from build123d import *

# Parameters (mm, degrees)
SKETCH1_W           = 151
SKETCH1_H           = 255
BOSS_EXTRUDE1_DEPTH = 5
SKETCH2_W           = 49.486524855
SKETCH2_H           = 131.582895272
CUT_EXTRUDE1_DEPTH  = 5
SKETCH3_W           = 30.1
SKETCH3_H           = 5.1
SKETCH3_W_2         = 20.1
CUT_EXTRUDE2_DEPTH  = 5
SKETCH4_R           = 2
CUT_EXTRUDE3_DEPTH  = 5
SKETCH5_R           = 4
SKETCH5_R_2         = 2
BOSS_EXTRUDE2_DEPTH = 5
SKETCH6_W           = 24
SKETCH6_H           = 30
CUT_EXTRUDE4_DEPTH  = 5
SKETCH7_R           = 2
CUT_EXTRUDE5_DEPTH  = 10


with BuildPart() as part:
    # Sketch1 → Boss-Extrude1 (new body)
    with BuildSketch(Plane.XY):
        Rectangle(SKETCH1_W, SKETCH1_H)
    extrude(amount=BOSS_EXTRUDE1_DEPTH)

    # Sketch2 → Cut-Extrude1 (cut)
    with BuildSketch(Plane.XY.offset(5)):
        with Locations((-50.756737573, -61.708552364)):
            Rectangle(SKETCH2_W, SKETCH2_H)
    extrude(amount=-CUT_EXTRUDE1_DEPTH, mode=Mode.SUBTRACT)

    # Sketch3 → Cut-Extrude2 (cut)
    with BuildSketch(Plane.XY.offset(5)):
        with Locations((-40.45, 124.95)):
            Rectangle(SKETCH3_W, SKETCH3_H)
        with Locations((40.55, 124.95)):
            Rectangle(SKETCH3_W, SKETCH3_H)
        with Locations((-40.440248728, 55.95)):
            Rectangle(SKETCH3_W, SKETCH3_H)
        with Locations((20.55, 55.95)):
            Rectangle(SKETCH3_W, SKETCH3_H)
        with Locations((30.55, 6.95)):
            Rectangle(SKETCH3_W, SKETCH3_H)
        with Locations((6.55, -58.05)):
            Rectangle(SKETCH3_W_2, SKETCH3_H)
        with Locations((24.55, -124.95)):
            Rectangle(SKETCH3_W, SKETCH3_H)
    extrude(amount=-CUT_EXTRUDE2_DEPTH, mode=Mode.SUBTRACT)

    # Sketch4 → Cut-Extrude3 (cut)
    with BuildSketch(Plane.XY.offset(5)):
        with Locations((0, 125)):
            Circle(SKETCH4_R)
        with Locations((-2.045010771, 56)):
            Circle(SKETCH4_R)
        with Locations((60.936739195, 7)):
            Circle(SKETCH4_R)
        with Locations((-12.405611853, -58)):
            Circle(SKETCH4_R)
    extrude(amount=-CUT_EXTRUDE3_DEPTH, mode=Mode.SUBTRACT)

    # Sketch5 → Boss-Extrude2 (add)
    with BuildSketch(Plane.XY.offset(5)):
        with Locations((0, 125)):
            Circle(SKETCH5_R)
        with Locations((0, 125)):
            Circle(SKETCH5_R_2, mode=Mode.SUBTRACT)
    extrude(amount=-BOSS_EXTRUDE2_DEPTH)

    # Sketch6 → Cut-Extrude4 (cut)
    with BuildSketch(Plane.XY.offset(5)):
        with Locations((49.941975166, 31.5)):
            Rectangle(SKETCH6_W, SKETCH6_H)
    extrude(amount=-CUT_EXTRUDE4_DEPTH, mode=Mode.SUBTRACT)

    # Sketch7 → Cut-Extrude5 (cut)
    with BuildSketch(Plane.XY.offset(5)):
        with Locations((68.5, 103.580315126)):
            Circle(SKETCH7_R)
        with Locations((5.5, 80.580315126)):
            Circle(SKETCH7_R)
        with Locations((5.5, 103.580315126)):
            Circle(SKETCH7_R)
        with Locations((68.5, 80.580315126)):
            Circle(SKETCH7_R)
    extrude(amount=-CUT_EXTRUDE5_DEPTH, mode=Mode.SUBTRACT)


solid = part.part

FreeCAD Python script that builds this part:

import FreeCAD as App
import Part
import Sketcher

V = App.Vector

doc = App.newDocument("Part")
params = doc.addObject("Spreadsheet::Sheet", "Params")
for row, (alias, value) in enumerate([
    ("sketch1_width", "151 mm"),
    ("sketch1_height", "255 mm"),
    ("pad1_length", "5 mm"),
    ("pocket1_length", "5 mm"),
    ("sketch3_width", "30.1 mm"),
    ("sketch3_width2", "20.1 mm"),
    ("sketch3_height", "5.1 mm"),
    ("pocket2_length", "5 mm"),
    ("sketch4_diameter", "4 mm"),
    ("pocket3_length", "5 mm"),
    ("sketch5_diameter", "8 mm"),
    ("sketch5_diameter2", "4 mm"),
    ("pad2_length", "5 mm"),
    ("sketch6_width", "24 mm"),
    ("sketch6_height", "30 mm"),
    ("pocket4_length", "5 mm"),
    ("sketch7_diameter", "4 mm"),
    ("pocket5_length", "10 mm"),
], start=1):
    params.set(f"A{row}", alias)
    params.set(f"B{row}", "=" + value)
    params.setAlias(f"B{row}", alias)

body = doc.addObject("PartDesign::Body", "Body")

# Sketch on XY plane
sketch1 = doc.addObject("Sketcher::SketchObject", "Sketch")
body.addObject(sketch1)
sketch1.AttachmentSupport = (doc.XY_Plane, [""])
sketch1.MapMode = "FlatFace"
sketch1.addGeometry(Part.LineSegment(V(-76, 128, 0), V(-76, -128, 0)), False)
sketch1.addGeometry(Part.LineSegment(V(-76, -128, 0), V(76, -128, 0)), False)
sketch1.addGeometry(Part.LineSegment(V(76, -128, 0), V(76, 128, 0)), False)
sketch1.addGeometry(Part.LineSegment(V(76, 128, 0), V(-76, 128, 0)), False)
sketch1.addConstraint(Sketcher.Constraint("Coincident", 0, 2, 1, 1))
sketch1.addConstraint(Sketcher.Constraint("Coincident", 1, 2, 2, 1))
sketch1.addConstraint(Sketcher.Constraint("Coincident", 2, 2, 3, 1))
sketch1.addConstraint(Sketcher.Constraint("Coincident", 3, 2, 0, 1))
sketch1.addConstraint(Sketcher.Constraint("Vertical", 0))
sketch1.addConstraint(Sketcher.Constraint("Horizontal", 1))
sketch1.addConstraint(Sketcher.Constraint("Vertical", 2))
sketch1.addConstraint(Sketcher.Constraint("Horizontal", 3))
sketch1.addConstraint(Sketcher.Constraint("Symmetric", 0, 2, 2, 2, -1, 1))
sketch1.addConstraint(Sketcher.Constraint("DistanceX", 1, 1, 1, 2, 151.0))
sketch1.addConstraint(Sketcher.Constraint("DistanceY", 0, 2, 0, 1, 255.0))
sketch1.setExpression("Constraints[9]", "Params.sketch1_width")
sketch1.setExpression("Constraints[10]", "Params.sketch1_height")
pad1 = doc.addObject("PartDesign::Pad", "Pad")
body.addObject(pad1)
pad1.Profile = sketch1
pad1.setExpression("Length", "Params.pad1_length")

# Sketch on XY plane
sketch2 = doc.addObject("Sketcher::SketchObject", "Sketch001")
body.addObject(sketch2)
sketch2.AttachmentSupport = (doc.XY_Plane, [""])
sketch2.MapMode = "FlatFace"
sketch2.AttachmentOffset = App.Placement(V(0, 0, 5), App.Rotation())
sketch2.addGeometry(Part.LineSegment(V(-76, 4, 0), V(-76, -128, 0)), False)
sketch2.addGeometry(Part.LineSegment(V(-76, -128, 0), V(-26, -128, 0)), False)
sketch2.addGeometry(Part.LineSegment(V(-26, -128, 0), V(-26, 4, 0)), False)
sketch2.addGeometry(Part.LineSegment(V(-26, 4, 0), V(-76, 4, 0)), False)
sketch2.addConstraint(Sketcher.Constraint("Coincident", 0, 2, 1, 1))
sketch2.addConstraint(Sketcher.Constraint("Coincident", 1, 2, 2, 1))
sketch2.addConstraint(Sketcher.Constraint("Coincident", 2, 2, 3, 1))
sketch2.addConstraint(Sketcher.Constraint("Coincident", 3, 2, 0, 1))
sketch2.addConstraint(Sketcher.Constraint("Vertical", 0))
sketch2.addConstraint(Sketcher.Constraint("Horizontal", 1))
sketch2.addConstraint(Sketcher.Constraint("Vertical", 2))
sketch2.addConstraint(Sketcher.Constraint("Horizontal", 3))
sketch2.addConstraint(Sketcher.Constraint("DistanceX", 0, 2, -1, 1, 75.5))
sketch2.addConstraint(Sketcher.Constraint("DistanceY", 0, 2, -1, 1, 127.5))
sketch2.addConstraint(Sketcher.Constraint("DistanceX", 1, 1, 1, 2, 49.486525))
sketch2.addConstraint(Sketcher.Constraint("DistanceY", 0, 2, 0, 1, 131.582895))
pocket1 = doc.addObject("PartDesign::Pocket", "Pocket")
body.addObject(pocket1)
pocket1.Profile = sketch2
pocket1.setExpression("Length", "Params.pocket1_length")

# Sketch on XY plane
sketch3 = doc.addObject("Sketcher::SketchObject", "Sketch002")
body.addObject(sketch3)
sketch3.AttachmentSupport = (doc.XY_Plane, [""])
sketch3.MapMode = "FlatFace"
sketch3.AttachmentOffset = App.Placement(V(0, 0, 5), App.Rotation())
sketch3.addGeometry(Part.LineSegment(V(-56, 128, 0), V(-56, 122, 0)), False)
sketch3.addGeometry(Part.LineSegment(V(-56, 122, 0), V(-25, 122, 0)), False)
sketch3.addGeometry(Part.LineSegment(V(-25, 122, 0), V(-25, 128, 0)), False)
sketch3.addGeometry(Part.LineSegment(V(-25, 128, 0), V(-56, 128, 0)), False)
sketch3.addGeometry(Part.LineSegment(V(26, 128, 0), V(26, 122, 0)), False)
sketch3.addGeometry(Part.LineSegment(V(26, 122, 0), V(56, 122, 0)), False)
sketch3.addGeometry(Part.LineSegment(V(56, 122, 0), V(56, 128, 0)), False)
sketch3.addGeometry(Part.LineSegment(V(56, 128, 0), V(26, 128, 0)), False)
sketch3.addGeometry(Part.LineSegment(V(-55, 58, 0), V(-55, 53, 0)), False)
sketch3.addGeometry(Part.LineSegment(V(-55, 53, 0), V(-25, 53, 0)), False)
sketch3.addGeometry(Part.LineSegment(V(-25, 53, 0), V(-25, 58, 0)), False)
sketch3.addGeometry(Part.LineSegment(V(-25, 58, 0), V(-55, 58, 0)), False)
sketch3.addGeometry(Part.LineSegment(V(6, 58, 0), V(6, 53, 0)), False)
sketch3.addGeometry(Part.LineSegment(V(6, 53, 0), V(36, 53, 0)), False)
sketch3.addGeometry(Part.LineSegment(V(36, 53, 0), V(36, 58, 0)), False)
sketch3.addGeometry(Part.LineSegment(V(36, 58, 0), V(6, 58, 0)), False)
sketch3.addGeometry(Part.LineSegment(V(16, 10, 0), V(16, 4, 0)), False)
sketch3.addGeometry(Part.LineSegment(V(16, 4, 0), V(46, 4, 0)), False)
sketch3.addGeometry(Part.LineSegment(V(46, 4, 0), V(46, 10, 0)), False)
sketch3.addGeometry(Part.LineSegment(V(46, 10, 0), V(16, 10, 0)), False)
sketch3.addGeometry(Part.LineSegment(V(-4, -56, 0), V(-4, -61, 0)), False)
sketch3.addGeometry(Part.LineSegment(V(-4, -61, 0), V(17, -61, 0)), False)
sketch3.addGeometry(Part.LineSegment(V(17, -61, 0), V(17, -56, 0)), False)
sketch3.addGeometry(Part.LineSegment(V(17, -56, 0), V(-4, -56, 0)), False)
sketch3.addGeometry(Part.LineSegment(V(10, -122, 0), V(10, -128, 0)), False)
sketch3.addGeometry(Part.LineSegment(V(10, -128, 0), V(40, -128, 0)), False)
sketch3.addGeometry(Part.LineSegment(V(40, -128, 0), V(40, -122, 0)), False)
sketch3.addGeometry(Part.LineSegment(V(40, -122, 0), V(10, -122, 0)), False)
sketch3.addConstraint(Sketcher.Constraint("Coincident", 0, 2, 1, 1))
sketch3.addConstraint(Sketcher.Constraint("Coincident", 1, 2, 2, 1))
sketch3.addConstraint(Sketcher.Constraint("Coincident", 2, 2, 3, 1))
sketch3.addConstraint(Sketcher.Constraint("Coincident", 3, 2, 0, 1))
sketch3.addConstraint(Sketcher.Constraint("Coincident", 4, 2, 5, 1))
sketch3.addConstraint(Sketcher.Constraint("Coincident", 5, 2, 6, 1))
sketch3.addConstraint(Sketcher.Constraint("Coincident", 6, 2, 7, 1))
sketch3.addConstraint(Sketcher.Constraint("Coincident", 7, 2, 4, 1))
sketch3.addConstraint(Sketcher.Constraint("Coincident", 8, 2, 9, 1))
sketch3.addConstraint(Sketcher.Constraint("Coincident", 9, 2, 10, 1))
sketch3.addConstraint(Sketcher.Constraint("Coincident", 10, 2, 11, 1))
sketch3.addConstraint(Sketcher.Constraint("Coincident", 11, 2, 8, 1))
sketch3.addConstraint(Sketcher.Constraint("Coincident", 12, 2, 13, 1))
sketch3.addConstraint(Sketcher.Constraint("Coincident", 13, 2, 14, 1))
sketch3.addConstraint(Sketcher.Constraint("Coincident", 14, 2, 15, 1))
sketch3.addConstraint(Sketcher.Constraint("Coincident", 15, 2, 12, 1))
sketch3.addConstraint(Sketcher.Constraint("Coincident", 16, 2, 17, 1))
sketch3.addConstraint(Sketcher.Constraint("Coincident", 17, 2, 18, 1))
sketch3.addConstraint(Sketcher.Constraint("Coincident", 18, 2, 19, 1))
sketch3.addConstraint(Sketcher.Constraint("Coincident", 19, 2, 16, 1))
sketch3.addConstraint(Sketcher.Constraint("Coincident", 20, 2, 21, 1))
sketch3.addConstraint(Sketcher.Constraint("Coincident", 21, 2, 22, 1))
sketch3.addConstraint(Sketcher.Constraint("Coincident", 22, 2, 23, 1))
sketch3.addConstraint(Sketcher.Constraint("Coincident", 23, 2, 20, 1))
sketch3.addConstraint(Sketcher.Constraint("Coincident", 24, 2, 25, 1))
sketch3.addConstraint(Sketcher.Constraint("Coincident", 25, 2, 26, 1))
sketch3.addConstraint(Sketcher.Constraint("Coincident", 26, 2, 27, 1))
sketch3.addConstraint(Sketcher.Constraint("Coincident", 27, 2, 24, 1))
sketch3.addConstraint(Sketcher.Constraint("Vertical", 0))
sketch3.addConstraint(Sketcher.Constraint("Horizontal", 1))
sketch3.addConstraint(Sketcher.Constraint("Vertical", 2))
sketch3.addConstraint(Sketcher.Constraint("Horizontal", 3))
sketch3.addConstraint(Sketcher.Constraint("Vertical", 4))
sketch3.addConstraint(Sketcher.Constraint("Horizontal", 5))
sketch3.addConstraint(Sketcher.Constraint("Vertical", 6))
sketch3.addConstraint(Sketcher.Constraint("Horizontal", 7))
sketch3.addConstraint(Sketcher.Constraint("Vertical", 8))
sketch3.addConstraint(Sketcher.Constraint("Horizontal", 9))
sketch3.addConstraint(Sketcher.Constraint("Vertical", 10))
sketch3.addConstraint(Sketcher.Constraint("Horizontal", 11))
sketch3.addConstraint(Sketcher.Constraint("Vertical", 12))
sketch3.addConstraint(Sketcher.Constraint("Horizontal", 13))
sketch3.addConstraint(Sketcher.Constraint("Vertical", 14))
sketch3.addConstraint(Sketcher.Constraint("Horizontal", 15))
sketch3.addConstraint(Sketcher.Constraint("Vertical", 16))
sketch3.addConstraint(Sketcher.Constraint("Horizontal", 17))
sketch3.addConstraint(Sketcher.Constraint("Vertical", 18))
sketch3.addConstraint(Sketcher.Constraint("Horizontal", 19))
sketch3.addConstraint(Sketcher.Constraint("Vertical", 20))
sketch3.addConstraint(Sketcher.Constraint("Horizontal", 21))
sketch3.addConstraint(Sketcher.Constraint("Vertical", 22))
sketch3.addConstraint(Sketcher.Constraint("Horizontal", 23))
sketch3.addConstraint(Sketcher.Constraint("Vertical", 24))
sketch3.addConstraint(Sketcher.Constraint("Horizontal", 25))
sketch3.addConstraint(Sketcher.Constraint("Vertical", 26))
sketch3.addConstraint(Sketcher.Constraint("Horizontal", 27))
sketch3.addConstraint(Sketcher.Constraint("Horizontal", 1, 2, 4, 2))
sketch3.addConstraint(Sketcher.Constraint("Horizontal", 3, 2, 6, 2))
sketch3.addConstraint(Sketcher.Constraint("Horizontal", 9, 2, 12, 2))
sketch3.addConstraint(Sketcher.Constraint("Horizontal", 11, 2, 14, 2))
sketch3.addConstraint(Sketcher.Constraint("Equal", 3, 5))
sketch3.addConstraint(Sketcher.Constraint("Equal", 7, 9))
sketch3.addConstraint(Sketcher.Constraint("Equal", 11, 13))
sketch3.addConstraint(Sketcher.Constraint("Equal", 15, 17))
sketch3.addConstraint(Sketcher.Constraint("Equal", 19, 25))
sketch3.addConstraint(Sketcher.Constraint("Equal", 6, 8))
sketch3.addConstraint(Sketcher.Constraint("Equal", 14, 16))
sketch3.addConstraint(Sketcher.Constraint("Equal", 18, 20))
sketch3.addConstraint(Sketcher.Constraint("Equal", 22, 24))
sketch3.addConstraint(Sketcher.Constraint("DistanceX", 1, 1, 1, 2, 30.1))
sketch3.addConstraint(Sketcher.Constraint("DistanceX", 21, 1, 21, 2, 20.1))
sketch3.addConstraint(Sketcher.Constraint("DistanceY", 0, 2, 0, 1, 5.1))
sketch3.addConstraint(Sketcher.Constraint("DistanceX", 0, 2, 4, 2, 81.0))
sketch3.addConstraint(Sketcher.Constraint("DistanceY", 8, 2, 0, 2, 69.0))
sketch3.addConstraint(Sketcher.Constraint("DistanceX", 12, 2, 4, 2, 20.0))
sketch3.addConstraint(Sketcher.Constraint("DistanceX", 12, 2, 16, 2, 10.0))
sketch3.addConstraint(Sketcher.Constraint("DistanceY", 16, 2, 12, 2, 49.0))
sketch3.addConstraint(Sketcher.Constraint("DistanceX", 20, 2, 16, 2, 19.0))
sketch3.addConstraint(Sketcher.Constraint("DistanceY", 20, 2, 16, 2, 65.0))
sketch3.addConstraint(Sketcher.Constraint("DistanceX", 20, 2, 24, 2, 13.0))
sketch3.addConstraint(Sketcher.Constraint("DistanceY", 24, 2, 22, 2, 72.0))
sketch3.addConstraint(Sketcher.Constraint("DistanceX", 0, 2, -1, 1, 55.5))
sketch3.addConstraint(Sketcher.Constraint("DistanceY", -1, 1, 0, 2, 122.4))
sketch3.addConstraint(Sketcher.Constraint("DistanceX", 8, 2, -1, 1, 55.490249))
sketch3.setExpression("Constraints[69]", "Params.sketch3_width")
sketch3.setExpression("Constraints[70]", "Params.sketch3_width2")
sketch3.setExpression("Constraints[71]", "Params.sketch3_height")
pocket2 = doc.addObject("PartDesign::Pocket", "Pocket001")
body.addObject(pocket2)
pocket2.Profile = sketch3
pocket2.setExpression("Length", "Params.pocket2_length")

# Sketch on XY plane
sketch4 = doc.addObject("Sketcher::SketchObject", "Sketch003")
body.addObject(sketch4)
sketch4.AttachmentSupport = (doc.XY_Plane, [""])
sketch4.MapMode = "FlatFace"
sketch4.AttachmentOffset = App.Placement(V(0, 0, 5), App.Rotation())
sketch4.addGeometry(Part.Circle(V(0, 125, 0), V(0, 0, 1), 2), False)
sketch4.addGeometry(Part.Circle(V(-2, 56, 0), V(0, 0, 1), 2), False)
sketch4.addGeometry(Part.Circle(V(60.9, 7, 0), V(0, 0, 1), 2), False)
sketch4.addGeometry(Part.Circle(V(-12.4, -58, 0), V(0, 0, 1), 2), False)
sketch4.addConstraint(Sketcher.Constraint("Equal", 0, 1))
sketch4.addConstraint(Sketcher.Constraint("Equal", 1, 2))
sketch4.addConstraint(Sketcher.Constraint("Equal", 2, 3))
sketch4.addConstraint(Sketcher.Constraint("PointOnObject", 0, 3, -2))
sketch4.addConstraint(Sketcher.Constraint("Diameter", 0, 4.0))
sketch4.addConstraint(Sketcher.Constraint("DistanceY", -1, 1, 0, 3, 125.0))
sketch4.addConstraint(Sketcher.Constraint("DistanceY", -1, 1, 1, 3, 56.0))
sketch4.addConstraint(Sketcher.Constraint("DistanceY", -1, 1, 2, 3, 7.0))
sketch4.addConstraint(Sketcher.Constraint("DistanceY", 3, 3, -1, 1, 58.0))
sketch4.addConstraint(Sketcher.Constraint("DistanceX", 3, 3, 1, 3, 10.360601))
sketch4.addConstraint(Sketcher.Constraint("DistanceX", 1, 3, -1, 1, 2.045011))
sketch4.addConstraint(Sketcher.Constraint("DistanceX", -1, 1, 2, 3, 60.936739))
sketch4.setExpression("Constraints[4]", "Params.sketch4_diameter")
pocket3 = doc.addObject("PartDesign::Pocket", "Pocket002")
body.addObject(pocket3)
pocket3.Profile = sketch4
pocket3.setExpression("Length", "Params.pocket3_length")

# Sketch on XY plane
sketch5 = doc.addObject("Sketcher::SketchObject", "Sketch004")
body.addObject(sketch5)
sketch5.AttachmentSupport = (doc.XY_Plane, [""])
sketch5.MapMode = "FlatFace"
sketch5.AttachmentOffset = App.Placement(V(0, 0, 5), App.Rotation())
sketch5.addGeometry(Part.Circle(V(0, 125, 0), V(0, 0, 1), 4), False)
sketch5.addGeometry(Part.Circle(V(0, 125, 0), V(0, 0, 1), 2), False)
sketch5.addConstraint(Sketcher.Constraint("Coincident", 1, 3, 0, 3))
sketch5.addConstraint(Sketcher.Constraint("PointOnObject", 0, 3, -2))
sketch5.addConstraint(Sketcher.Constraint("Diameter", 0, 8.0))
sketch5.addConstraint(Sketcher.Constraint("Diameter", 1, 4.0))
sketch5.addConstraint(Sketcher.Constraint("DistanceY", -1, 1, 0, 3, 125.0))
sketch5.setExpression("Constraints[2]", "Params.sketch5_diameter")
sketch5.setExpression("Constraints[3]", "Params.sketch5_diameter2")
pad2 = doc.addObject("PartDesign::Pad", "Pad001")
body.addObject(pad2)
pad2.Profile = sketch5
pad2.setExpression("Length", "Params.pad2_length")
pad2.Reversed = True

# Sketch on XY plane
sketch6 = doc.addObject("Sketcher::SketchObject", "Sketch005")
body.addObject(sketch6)
sketch6.AttachmentSupport = (doc.XY_Plane, [""])
sketch6.MapMode = "FlatFace"
sketch6.AttachmentOffset = App.Placement(V(0, 0, 5), App.Rotation())
sketch6.addGeometry(Part.LineSegment(V(38, 46, 0), V(38, 16, 0)), False)
sketch6.addGeometry(Part.LineSegment(V(38, 16, 0), V(62, 16, 0)), False)
sketch6.addGeometry(Part.LineSegment(V(62, 16, 0), V(62, 46, 0)), False)
sketch6.addGeometry(Part.LineSegment(V(62, 46, 0), V(38, 46, 0)), False)
sketch6.addConstraint(Sketcher.Constraint("Coincident", 0, 2, 1, 1))
sketch6.addConstraint(Sketcher.Constraint("Coincident", 1, 2, 2, 1))
sketch6.addConstraint(Sketcher.Constraint("Coincident", 2, 2, 3, 1))
sketch6.addConstraint(Sketcher.Constraint("Coincident", 3, 2, 0, 1))
sketch6.addConstraint(Sketcher.Constraint("Vertical", 0))
sketch6.addConstraint(Sketcher.Constraint("Horizontal", 1))
sketch6.addConstraint(Sketcher.Constraint("Vertical", 2))
sketch6.addConstraint(Sketcher.Constraint("Horizontal", 3))
sketch6.addConstraint(Sketcher.Constraint("DistanceX", 1, 1, 1, 2, 24.0))
sketch6.addConstraint(Sketcher.Constraint("DistanceY", 0, 2, 0, 1, 30.0))
sketch6.addConstraint(Sketcher.Constraint("DistanceY", -1, 1, 0, 2, 16.5))
sketch6.addConstraint(Sketcher.Constraint("DistanceX", -1, 1, 0, 2, 37.941975))
sketch6.setExpression("Constraints[8]", "Params.sketch6_width")
sketch6.setExpression("Constraints[9]", "Params.sketch6_height")
pocket4 = doc.addObject("PartDesign::Pocket", "Pocket003")
body.addObject(pocket4)
pocket4.Profile = sketch6
pocket4.setExpression("Length", "Params.pocket4_length")

# Sketch on XY plane
sketch7 = doc.addObject("Sketcher::SketchObject", "Sketch006")
body.addObject(sketch7)
sketch7.AttachmentSupport = (doc.XY_Plane, [""])
sketch7.MapMode = "FlatFace"
sketch7.AttachmentOffset = App.Placement(V(0, 0, 5), App.Rotation())
sketch7.addGeometry(Part.Circle(V(68.5, 103.6, 0), V(0, 0, 1), 2), False)
sketch7.addGeometry(Part.Circle(V(5.5, 80.6, 0), V(0, 0, 1), 2), False)
sketch7.addGeometry(Part.Circle(V(5.5, 103.6, 0), V(0, 0, 1), 2), False)
sketch7.addGeometry(Part.Circle(V(68.5, 80.6, 0), V(0, 0, 1), 2), False)
sketch7.addConstraint(Sketcher.Constraint("Equal", 0, 1))
sketch7.addConstraint(Sketcher.Constraint("Equal", 1, 2))
sketch7.addConstraint(Sketcher.Constraint("Equal", 2, 3))
sketch7.addConstraint(Sketcher.Constraint("Horizontal", 0, 3, 2, 3))
sketch7.addConstraint(Sketcher.Constraint("Horizontal", 1, 3, 3, 3))
sketch7.addConstraint(Sketcher.Constraint("Vertical", 1, 3, 2, 3))
sketch7.addConstraint(Sketcher.Constraint("Vertical", 0, 3, 3, 3))
sketch7.addConstraint(Sketcher.Constraint("Diameter", 0, 4.0))
sketch7.addConstraint(Sketcher.Constraint("DistanceX", 1, 3, 0, 3, 63.0))
sketch7.addConstraint(Sketcher.Constraint("DistanceY", 1, 3, 0, 3, 23.0))
sketch7.addConstraint(Sketcher.Constraint("DistanceX", -1, 1, 0, 3, 68.5))
sketch7.addConstraint(Sketcher.Constraint("DistanceY", -1, 1, 0, 3, 103.580315))
sketch7.setExpression("Constraints[7]", "Params.sketch7_diameter")
pocket5 = doc.addObject("PartDesign::Pocket", "Pocket004")
body.addObject(pocket5)
pocket5.Profile = sketch7
pocket5.setExpression("Length", "Params.pocket5_length")

doc.recompute()
